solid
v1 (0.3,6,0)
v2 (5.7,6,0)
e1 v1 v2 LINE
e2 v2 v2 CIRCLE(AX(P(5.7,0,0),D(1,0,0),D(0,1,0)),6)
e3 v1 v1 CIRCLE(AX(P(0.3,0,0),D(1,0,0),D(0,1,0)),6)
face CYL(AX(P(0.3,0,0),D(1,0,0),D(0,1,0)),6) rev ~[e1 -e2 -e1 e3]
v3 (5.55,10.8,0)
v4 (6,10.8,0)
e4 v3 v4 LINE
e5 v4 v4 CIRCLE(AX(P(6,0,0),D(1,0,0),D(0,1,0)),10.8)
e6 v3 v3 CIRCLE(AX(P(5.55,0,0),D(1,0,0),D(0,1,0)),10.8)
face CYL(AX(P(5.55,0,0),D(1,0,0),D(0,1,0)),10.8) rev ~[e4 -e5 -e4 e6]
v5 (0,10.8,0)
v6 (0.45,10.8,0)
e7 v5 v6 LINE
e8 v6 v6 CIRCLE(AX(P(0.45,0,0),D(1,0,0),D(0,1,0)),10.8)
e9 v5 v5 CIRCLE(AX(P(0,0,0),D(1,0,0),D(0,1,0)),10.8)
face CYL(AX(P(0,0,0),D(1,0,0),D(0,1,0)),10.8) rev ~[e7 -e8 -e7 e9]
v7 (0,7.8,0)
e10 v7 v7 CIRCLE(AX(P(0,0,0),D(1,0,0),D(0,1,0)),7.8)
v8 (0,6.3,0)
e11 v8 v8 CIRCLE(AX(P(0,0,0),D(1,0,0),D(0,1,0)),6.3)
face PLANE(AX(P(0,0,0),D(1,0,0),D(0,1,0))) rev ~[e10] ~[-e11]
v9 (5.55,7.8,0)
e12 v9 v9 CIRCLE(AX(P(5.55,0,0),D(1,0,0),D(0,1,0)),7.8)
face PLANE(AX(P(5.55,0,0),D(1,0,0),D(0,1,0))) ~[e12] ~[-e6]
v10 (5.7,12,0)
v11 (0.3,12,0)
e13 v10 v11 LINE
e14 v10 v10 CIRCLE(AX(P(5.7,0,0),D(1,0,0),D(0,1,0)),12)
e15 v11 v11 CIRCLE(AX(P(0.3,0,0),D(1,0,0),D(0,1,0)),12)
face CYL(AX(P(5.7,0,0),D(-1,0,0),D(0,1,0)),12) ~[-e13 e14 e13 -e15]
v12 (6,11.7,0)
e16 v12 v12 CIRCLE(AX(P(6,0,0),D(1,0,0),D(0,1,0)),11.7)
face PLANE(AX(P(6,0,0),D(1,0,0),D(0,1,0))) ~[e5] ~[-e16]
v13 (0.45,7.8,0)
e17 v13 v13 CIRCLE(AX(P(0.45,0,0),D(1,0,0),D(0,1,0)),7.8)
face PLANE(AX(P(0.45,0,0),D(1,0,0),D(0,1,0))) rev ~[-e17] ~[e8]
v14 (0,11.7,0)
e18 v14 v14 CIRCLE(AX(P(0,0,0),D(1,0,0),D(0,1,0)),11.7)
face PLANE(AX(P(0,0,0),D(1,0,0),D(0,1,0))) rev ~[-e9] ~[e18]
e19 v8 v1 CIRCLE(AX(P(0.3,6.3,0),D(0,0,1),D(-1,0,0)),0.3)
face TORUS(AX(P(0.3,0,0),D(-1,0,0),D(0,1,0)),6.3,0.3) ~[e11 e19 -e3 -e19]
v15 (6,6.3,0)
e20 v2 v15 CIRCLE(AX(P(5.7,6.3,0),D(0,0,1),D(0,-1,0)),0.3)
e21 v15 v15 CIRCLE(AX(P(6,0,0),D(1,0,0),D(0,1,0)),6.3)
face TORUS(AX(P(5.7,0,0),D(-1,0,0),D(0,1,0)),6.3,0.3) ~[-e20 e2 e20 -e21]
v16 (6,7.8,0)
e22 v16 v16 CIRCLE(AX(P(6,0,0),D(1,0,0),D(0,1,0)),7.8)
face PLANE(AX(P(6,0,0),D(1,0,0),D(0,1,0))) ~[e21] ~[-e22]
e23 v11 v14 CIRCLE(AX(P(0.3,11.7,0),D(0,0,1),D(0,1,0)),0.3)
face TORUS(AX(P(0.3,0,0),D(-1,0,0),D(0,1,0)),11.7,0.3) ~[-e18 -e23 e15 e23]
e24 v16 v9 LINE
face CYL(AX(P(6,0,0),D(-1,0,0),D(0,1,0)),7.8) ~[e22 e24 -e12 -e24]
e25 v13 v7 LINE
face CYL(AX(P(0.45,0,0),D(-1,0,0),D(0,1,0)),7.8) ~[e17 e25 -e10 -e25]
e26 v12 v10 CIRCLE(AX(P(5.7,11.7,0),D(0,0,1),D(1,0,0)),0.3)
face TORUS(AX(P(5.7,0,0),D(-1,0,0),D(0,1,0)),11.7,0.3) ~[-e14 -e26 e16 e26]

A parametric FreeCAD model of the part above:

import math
import FreeCAD as App
import Part
import Sketcher
Q = App.Units.Quantity

doc = App.newDocument("Part")
params = doc.addObject("Spreadsheet::Sheet", "Params")
for row, (alias, value) in enumerate([
    ("sketch1_radius", "0.3 mm"),
    ("sketch1_height", "3 mm"),
    ("sketch1_width", "5.4 mm"),
    ("sketch1_height2", "1.5 mm"),
    ("sketch1_height3", "0.9 mm"),
    ("revolution_angle", "360 deg"),
], start=1):
    params.set(f"A{row}", alias)
    params.set(f"B{row}", "=" + value)
    params.setAlias(f"B{row}", alias)

body = doc.addObject("PartDesign::Body", "Body")

# Sketch on XY plane
sketch1 = body.newObject("Sketcher::SketchObject", "Sketch")
sketch1.AttachmentSupport = (doc.getObject("XY_Plane"), [""])
sketch1.MapMode = "FlatFace"
sketch1.addGeometry([
    Part.LineSegment(App.Vector(0, 7.8, 0), App.Vector(0, 6.3, 0)),  # 0
    Part.ArcOfCircle(Part.Circle(App.Vector(0.3, 6.3, 0), App.Vector(0, 0, 1), 0.3), math.radians(180), math.radians(270)),  # 1
    Part.LineSegment(App.Vector(0.3, 6, 0), App.Vector(5.7, 6, 0)),  # 2
    Part.ArcOfCircle(Part.Circle(App.Vector(5.7, 6.3, 0), App.Vector(0, 0, 1), 0.3), math.radians(-90), math.radians(0)),  # 3
    Part.LineSegment(App.Vector(6, 6.3, 0), App.Vector(6, 7.8, 0)),  # 4
    Part.LineSegment(App.Vector(6, 7.8, 0), App.Vector(5.55, 7.8, 0)),  # 5
    Part.LineSegment(App.Vector(5.55, 7.8, 0), App.Vector(5.55, 10.8, 0)),  # 6
    Part.LineSegment(App.Vector(5.55, 10.8, 0), App.Vector(6, 10.8, 0)),  # 7
    Part.LineSegment(App.Vector(6, 10.8, 0), App.Vector(6, 11.7, 0)),  # 8
    Part.ArcOfCircle(Part.Circle(App.Vector(5.7, 11.7, 0), App.Vector(0, 0, 1), 0.3), math.radians(0), math.radians(90)),  # 9
    Part.LineSegment(App.Vector(5.7, 12, 0), App.Vector(0.3, 12, 0)),  # 10
    Part.ArcOfCircle(Part.Circle(App.Vector(0.3, 11.7, 0), App.Vector(0, 0, 1), 0.3), math.radians(90), math.radians(180)),  # 11
    Part.LineSegment(App.Vector(0, 11.7, 0), App.Vector(0, 10.8, 0)),  # 12
    Part.LineSegment(App.Vector(0, 10.8, 0), App.Vector(0.45, 10.8, 0)),  # 13
    Part.LineSegment(App.Vector(0.45, 10.8, 0), App.Vector(0.45, 7.8, 0)),  # 14
    Part.LineSegment(App.Vector(0.45, 7.8, 0), App.Vector(0, 7.8, 0)),  # 15
], False)
sketch1.addConstraint([
    Sketcher.Constraint("Tangent", 0, 2, 1, 1),
    Sketcher.Constraint("Tangent", 1, 2, 2, 1),
    Sketcher.Constraint("Tangent", 2, 2, 3, 1),
    Sketcher.Constraint("Tangent", 3, 2, 4, 1),
    Sketcher.Constraint("Coincident", 4, 2, 5, 1),
    Sketcher.Constraint("Coincident", 5, 2, 6, 1),
    Sketcher.Constraint("Coincident", 6, 2, 7, 1),
    Sketcher.Constraint("Coincident", 7, 2, 8, 1),
    Sketcher.Constraint("Tangent", 8, 2, 9, 1),
    Sketcher.Constraint("Tangent", 9, 2, 10, 1),
    Sketcher.Constraint("Tangent", 10, 2, 11, 1),
    Sketcher.Constraint("Tangent", 11, 2, 12, 1),
    Sketcher.Constraint("Coincident", 12, 2, 13, 1),
    Sketcher.Constraint("Coincident", 13, 2, 14, 1),
    Sketcher.Constraint("Coincident", 14, 2, 15, 1),
    Sketcher.Constraint("Coincident", 15, 2, 0, 1),
    Sketcher.Constraint("Vertical", 0),
    Sketcher.Constraint("Horizontal", 2),
    Sketcher.Constraint("Vertical", 4),
    Sketcher.Constraint("Horizontal", 5),
    Sketcher.Constraint("Vertical", 6),
    Sketcher.Constraint("Horizontal", 7),
    Sketcher.Constraint("Vertical", 8),
    Sketcher.Constraint("Horizontal", 10),
    Sketcher.Constraint("Vertical", 12),
    Sketcher.Constraint("Horizontal", 13),
    Sketcher.Constraint("Vertical", 14),
    Sketcher.Constraint("Horizontal", 15),
    Sketcher.Constraint("Equal", 1, 3),
    Sketcher.Constraint("Equal", 3, 9),
    Sketcher.Constraint("Equal", 9, 11),
    Sketcher.Constraint("PointOnObject", 0, 2, -2),
    Sketcher.Constraint("PointOnObject", 11, 2, -2),
    Sketcher.Constraint("Horizontal", 7, 2, 12, 2),
    Sketcher.Constraint("Horizontal", 5, 2, 14, 2),
    Sketcher.Constraint("Vertical", 3, 3, 9, 3),
    Sketcher.Constraint("Equal", 7, 13),
    Sketcher.Constraint("Radius", 1, Q("0.3 mm")),
    Sketcher.Constraint("DistanceY", 6, 1, 6, 2, Q("3 mm")),
    Sketcher.Constraint("DistanceX", 2, 1, 2, 2, Q("5.4 mm")),
    Sketcher.Constraint("DistanceY", 0, 2, 0, 1, Q("1.5 mm")),
    Sketcher.Constraint("DistanceY", 8, 1, 8, 2, Q("0.9 mm")),
    Sketcher.Constraint("DistanceY", -1, 1, 1, 2, Q("6 mm")),
    Sketcher.Constraint("DistanceX", 5, 2, 5, 1, Q("0.45 mm")),
])
sketch1.setExpression("Constraints[37]", "Params.sketch1_radius")
sketch1.setExpression("Constraints[38]", "Params.sketch1_height")
sketch1.setExpression("Constraints[39]", "Params.sketch1_width")
sketch1.setExpression("Constraints[40]", "Params.sketch1_height2")
sketch1.setExpression("Constraints[41]", "Params.sketch1_height3")
revolution = body.newObject("PartDesign::Revolution", "Revolution")
revolution.Profile = sketch1
revolution.ReferenceAxis = (sketch1, ["H_Axis"])
revolution.setExpression("Angle", "Params.revolution_angle")

doc.recompute()
